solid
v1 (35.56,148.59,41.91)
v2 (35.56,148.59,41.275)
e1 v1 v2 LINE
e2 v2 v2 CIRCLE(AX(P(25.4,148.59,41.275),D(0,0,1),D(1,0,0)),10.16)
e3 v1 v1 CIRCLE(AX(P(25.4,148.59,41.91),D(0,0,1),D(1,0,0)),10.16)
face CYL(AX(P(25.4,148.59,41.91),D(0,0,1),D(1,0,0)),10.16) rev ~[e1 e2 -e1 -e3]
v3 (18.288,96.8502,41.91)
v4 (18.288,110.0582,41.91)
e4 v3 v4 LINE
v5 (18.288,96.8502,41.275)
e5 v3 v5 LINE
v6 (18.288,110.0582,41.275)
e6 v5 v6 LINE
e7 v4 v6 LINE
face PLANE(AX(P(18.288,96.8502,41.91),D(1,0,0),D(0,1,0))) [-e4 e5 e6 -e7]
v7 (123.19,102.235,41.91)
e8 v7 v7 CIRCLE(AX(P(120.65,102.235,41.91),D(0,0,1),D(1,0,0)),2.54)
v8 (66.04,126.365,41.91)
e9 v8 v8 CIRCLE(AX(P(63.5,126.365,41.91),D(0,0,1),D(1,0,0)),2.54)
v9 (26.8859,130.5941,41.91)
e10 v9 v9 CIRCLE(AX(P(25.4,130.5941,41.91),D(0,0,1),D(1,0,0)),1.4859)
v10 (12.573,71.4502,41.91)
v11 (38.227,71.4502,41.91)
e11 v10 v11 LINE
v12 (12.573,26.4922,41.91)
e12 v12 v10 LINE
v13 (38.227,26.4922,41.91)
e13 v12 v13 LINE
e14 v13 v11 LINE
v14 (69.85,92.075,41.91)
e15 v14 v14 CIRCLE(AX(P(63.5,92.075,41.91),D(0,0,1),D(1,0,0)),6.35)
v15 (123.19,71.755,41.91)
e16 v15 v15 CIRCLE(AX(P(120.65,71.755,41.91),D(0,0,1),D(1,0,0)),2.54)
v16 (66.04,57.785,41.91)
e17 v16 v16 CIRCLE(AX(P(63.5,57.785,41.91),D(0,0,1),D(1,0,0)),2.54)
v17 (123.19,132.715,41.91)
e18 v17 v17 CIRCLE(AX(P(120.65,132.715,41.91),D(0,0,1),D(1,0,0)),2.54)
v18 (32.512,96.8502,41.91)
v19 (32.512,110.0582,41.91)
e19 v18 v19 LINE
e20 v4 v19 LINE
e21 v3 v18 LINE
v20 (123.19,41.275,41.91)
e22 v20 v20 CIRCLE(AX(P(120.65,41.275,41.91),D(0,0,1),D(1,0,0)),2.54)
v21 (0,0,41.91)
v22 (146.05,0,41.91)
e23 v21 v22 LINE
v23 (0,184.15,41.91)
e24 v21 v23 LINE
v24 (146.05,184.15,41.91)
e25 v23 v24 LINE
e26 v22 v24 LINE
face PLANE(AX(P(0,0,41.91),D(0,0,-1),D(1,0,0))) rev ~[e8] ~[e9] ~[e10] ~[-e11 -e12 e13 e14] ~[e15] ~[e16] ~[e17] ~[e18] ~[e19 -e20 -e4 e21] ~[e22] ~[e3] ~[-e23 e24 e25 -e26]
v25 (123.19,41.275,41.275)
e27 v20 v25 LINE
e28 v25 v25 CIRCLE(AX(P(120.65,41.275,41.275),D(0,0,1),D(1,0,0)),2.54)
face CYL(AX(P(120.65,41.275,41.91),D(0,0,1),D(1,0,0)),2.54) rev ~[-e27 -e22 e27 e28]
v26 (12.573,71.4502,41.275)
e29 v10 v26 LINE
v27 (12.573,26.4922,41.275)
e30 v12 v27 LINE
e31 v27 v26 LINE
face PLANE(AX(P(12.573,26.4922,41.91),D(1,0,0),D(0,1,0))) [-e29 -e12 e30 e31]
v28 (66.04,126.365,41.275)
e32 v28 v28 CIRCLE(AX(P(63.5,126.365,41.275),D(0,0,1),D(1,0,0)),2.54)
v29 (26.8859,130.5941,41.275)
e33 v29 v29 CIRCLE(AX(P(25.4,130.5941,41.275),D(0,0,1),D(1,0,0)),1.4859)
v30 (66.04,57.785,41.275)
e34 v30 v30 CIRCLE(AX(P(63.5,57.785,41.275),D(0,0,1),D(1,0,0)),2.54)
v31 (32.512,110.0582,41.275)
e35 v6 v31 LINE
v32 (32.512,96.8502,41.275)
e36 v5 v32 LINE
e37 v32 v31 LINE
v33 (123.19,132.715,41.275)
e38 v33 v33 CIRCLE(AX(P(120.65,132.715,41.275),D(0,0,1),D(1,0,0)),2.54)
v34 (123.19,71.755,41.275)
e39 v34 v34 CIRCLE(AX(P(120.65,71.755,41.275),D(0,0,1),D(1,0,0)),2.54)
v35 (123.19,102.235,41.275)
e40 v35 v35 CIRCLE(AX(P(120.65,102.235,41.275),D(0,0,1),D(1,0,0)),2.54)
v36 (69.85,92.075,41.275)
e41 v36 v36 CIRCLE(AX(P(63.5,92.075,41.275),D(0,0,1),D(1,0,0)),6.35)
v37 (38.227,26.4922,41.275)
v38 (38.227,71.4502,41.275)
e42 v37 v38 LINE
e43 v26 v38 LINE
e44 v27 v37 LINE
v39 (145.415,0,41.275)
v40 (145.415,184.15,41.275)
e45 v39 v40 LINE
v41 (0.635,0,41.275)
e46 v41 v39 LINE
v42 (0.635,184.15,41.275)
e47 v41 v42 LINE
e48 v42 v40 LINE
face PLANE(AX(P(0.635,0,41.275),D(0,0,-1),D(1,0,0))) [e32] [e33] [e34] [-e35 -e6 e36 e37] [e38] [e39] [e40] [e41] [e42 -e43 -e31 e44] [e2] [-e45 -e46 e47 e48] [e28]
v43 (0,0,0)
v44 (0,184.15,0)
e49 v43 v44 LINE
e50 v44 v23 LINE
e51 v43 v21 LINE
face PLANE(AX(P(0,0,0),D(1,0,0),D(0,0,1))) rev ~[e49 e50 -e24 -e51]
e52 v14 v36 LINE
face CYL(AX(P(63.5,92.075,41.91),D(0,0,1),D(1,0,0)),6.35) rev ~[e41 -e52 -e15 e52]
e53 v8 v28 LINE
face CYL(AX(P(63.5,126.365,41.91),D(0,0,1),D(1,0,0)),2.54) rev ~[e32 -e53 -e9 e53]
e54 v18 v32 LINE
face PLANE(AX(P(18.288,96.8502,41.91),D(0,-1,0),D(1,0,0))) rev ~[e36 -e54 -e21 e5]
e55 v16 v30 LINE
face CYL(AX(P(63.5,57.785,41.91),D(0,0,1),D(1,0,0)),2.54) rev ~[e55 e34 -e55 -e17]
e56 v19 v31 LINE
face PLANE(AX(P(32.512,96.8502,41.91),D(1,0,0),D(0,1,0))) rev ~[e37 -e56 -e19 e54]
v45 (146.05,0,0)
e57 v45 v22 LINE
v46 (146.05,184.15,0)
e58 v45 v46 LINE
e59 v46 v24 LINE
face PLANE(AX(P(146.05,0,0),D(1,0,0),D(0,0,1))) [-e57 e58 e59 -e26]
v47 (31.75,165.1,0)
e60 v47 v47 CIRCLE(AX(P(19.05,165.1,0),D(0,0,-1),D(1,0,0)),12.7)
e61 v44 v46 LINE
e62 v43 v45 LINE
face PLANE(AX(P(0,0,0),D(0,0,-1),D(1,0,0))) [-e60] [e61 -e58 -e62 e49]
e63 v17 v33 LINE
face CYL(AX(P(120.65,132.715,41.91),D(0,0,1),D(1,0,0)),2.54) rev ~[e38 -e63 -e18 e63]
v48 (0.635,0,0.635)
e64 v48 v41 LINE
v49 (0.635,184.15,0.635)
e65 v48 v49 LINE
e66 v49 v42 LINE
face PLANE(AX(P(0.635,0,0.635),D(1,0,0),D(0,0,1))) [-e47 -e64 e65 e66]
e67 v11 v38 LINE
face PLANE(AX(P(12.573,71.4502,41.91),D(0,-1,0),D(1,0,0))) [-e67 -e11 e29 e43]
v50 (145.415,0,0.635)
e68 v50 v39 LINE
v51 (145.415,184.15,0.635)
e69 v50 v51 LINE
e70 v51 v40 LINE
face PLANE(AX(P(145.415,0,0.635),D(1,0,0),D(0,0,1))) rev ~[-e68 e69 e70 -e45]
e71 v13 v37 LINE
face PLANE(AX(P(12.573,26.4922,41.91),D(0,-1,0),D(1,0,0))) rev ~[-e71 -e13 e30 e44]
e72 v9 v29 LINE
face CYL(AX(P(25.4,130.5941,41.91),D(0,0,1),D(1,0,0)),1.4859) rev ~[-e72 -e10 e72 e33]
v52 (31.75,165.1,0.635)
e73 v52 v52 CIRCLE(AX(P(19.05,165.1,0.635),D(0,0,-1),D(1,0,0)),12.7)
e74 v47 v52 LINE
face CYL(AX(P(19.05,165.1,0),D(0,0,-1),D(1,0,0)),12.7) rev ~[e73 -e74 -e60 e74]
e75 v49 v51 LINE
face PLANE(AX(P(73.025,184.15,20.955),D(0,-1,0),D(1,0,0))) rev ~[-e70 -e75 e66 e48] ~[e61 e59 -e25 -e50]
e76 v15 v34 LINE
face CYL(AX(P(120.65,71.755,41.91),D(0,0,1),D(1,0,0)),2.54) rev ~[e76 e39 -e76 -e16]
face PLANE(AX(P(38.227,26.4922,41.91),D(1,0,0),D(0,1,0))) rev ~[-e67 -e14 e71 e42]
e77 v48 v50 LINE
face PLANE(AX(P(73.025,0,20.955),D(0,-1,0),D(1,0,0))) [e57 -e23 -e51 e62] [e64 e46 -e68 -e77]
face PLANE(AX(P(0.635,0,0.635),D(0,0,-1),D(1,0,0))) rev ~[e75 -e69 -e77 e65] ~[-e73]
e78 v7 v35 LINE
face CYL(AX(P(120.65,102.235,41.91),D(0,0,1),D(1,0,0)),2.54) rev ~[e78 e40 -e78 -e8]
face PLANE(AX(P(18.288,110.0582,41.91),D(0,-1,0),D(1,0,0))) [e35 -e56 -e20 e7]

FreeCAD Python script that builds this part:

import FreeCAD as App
import Part
import Sketcher

V = App.Vector
Q = App.Units.Quantity


def add_polygon(sketch, points):
    """Adds a closed chain of lines whose ends are joined by coincident constraints."""
    first, n = sketch.GeometryCount, len(points)
    for a, b in zip(points, points[1:] + points[:1]):
        sketch.addGeometry(Part.LineSegment(App.Vector(*a, 0), App.Vector(*b, 0)), False)
    for i in range(n):
        sketch.addConstraint(Sketcher.Constraint("Coincident", first + i, 2, first + (i + 1) % n, 1))

doc = App.newDocument("Part")
params = doc.addObject("Spreadsheet::Sheet", "Params")
for row, (alias, value) in enumerate([
    ("sketch1_width", "5.7 in"),
    ("sketch1_height", "1.6 in"),
    ("sketch1_width2", "5.75 in"),
    ("sketch1_height2", "1.65 in"),
    ("pad1_length", "7.25 in"),
    ("sketch2_diameter", "1 in"),
    ("pocket1_length", "0.025 in"),
    ("sketch3_diameter", "0.8 in"),
    ("sketch3_diameter2", "0.5 in"),
    ("sketch3_diameter3", "0.2 in"),
    ("sketch3_width", "1.01 in"),
    ("sketch3_width2", "0.56 in"),
    ("pocket2_length", "0.025 in"),
    ("sketch4_diameter", "0.2 in"),
    ("sketch4_diameter2", "0.117 in"),
    ("pocket3_length", "0.025 in"),
], start=1):
    params.set(f"A{row}", alias)
    params.set(f"B{row}", "=" + value)
    params.setAlias(f"B{row}", alias)

body = doc.addObject("PartDesign::Body", "Body")

# Sketch on XZ plane
sketch1 = body.newObject("Sketcher::SketchObject", "Sketch")
sketch1.AttachmentSupport = (doc.getObject("XZ_Plane"), [""])
sketch1.MapMode = "FlatFace"
add_polygon(sketch1, [(0, 42), (0, 0), (146, 0), (146, 42)])  # lines 0-3
add_polygon(sketch1, [(145, 1), (1, 1), (1, 41), (145, 41)])  # lines 4-7
sketch1.addConstraint(Sketcher.Constraint("Vertical", 0))
sketch1.addConstraint(Sketcher.Constraint("Horizontal", 1))
sketch1.addConstraint(Sketcher.Constraint("Vertical", 2))
sketch1.addConstraint(Sketcher.Constraint("Horizontal", 3))
sketch1.addConstraint(Sketcher.Constraint("Horizontal", 4))
sketch1.addConstraint(Sketcher.Constraint("Vertical", 5))
sketch1.addConstraint(Sketcher.Constraint("Horizontal", 6))
sketch1.addConstraint(Sketcher.Constraint("Vertical", 7))
sketch1.addConstraint(Sketcher.Constraint("Coincident", 0, 2, -1, 1))
sketch1.addConstraint(Sketcher.Constraint("DistanceX", 4, 2, 4, 1, Q("5.7 in")))
sketch1.addConstraint(Sketcher.Constraint("DistanceY", 5, 1, 5, 2, Q("1.6 in")))
sketch1.addConstraint(Sketcher.Constraint("DistanceX", 1, 1, 1, 2, Q("5.75 in")))
sketch1.addConstraint(Sketcher.Constraint("DistanceY", 0, 2, 0, 1, Q("1.65 in")))
sketch1.addConstraint(Sketcher.Constraint("DistanceX", -1, 1, 4, 2, Q("0.025 in")))
sketch1.addConstraint(Sketcher.Constraint("DistanceY", -1, 1, 4, 2, Q("0.025 in")))
sketch1.setExpression("Constraints[17]", "Params.sketch1_width")
sketch1.setExpression("Constraints[18]", "Params.sketch1_height")
sketch1.setExpression("Constraints[19]", "Params.sketch1_width2")
sketch1.setExpression("Constraints[20]", "Params.sketch1_height2")
pad1 = body.newObject("PartDesign::Pad", "Pad")
pad1.Profile = sketch1
pad1.setExpression("Length", "Params.pad1_length")
pad1.Reversed = True

# Sketch on XY plane
sketch2 = body.newObject("Sketcher::SketchObject", "Sketch001")
sketch2.AttachmentSupport = (doc.getObject("XY_Plane"), [""])
sketch2.MapMode = "FlatFace"
sketch2.addGeometry(Part.Circle(V(19, 165, 0), V(0, 0, 1), 13), False)
sketch2.addConstraint(Sketcher.Constraint("Diameter", 0, Q("1 in")))
sketch2.addConstraint(Sketcher.Constraint("DistanceY", -1, 1, 0, 3, Q("6.5 in")))
sketch2.addConstraint(Sketcher.Constraint("DistanceX", -1, 1, 0, 3, Q("0.75 in")))
sketch2.setExpression("Constraints[0]", "Params.sketch2_diameter")
pocket1 = body.newObject("PartDesign::Pocket", "Pocket")
pocket1.Profile = sketch2
pocket1.setExpression("Length", "Params.pocket1_length")
pocket1.Reversed = True

# Sketch on XY plane
sketch3 = body.newObject("Sketcher::SketchObject", "Sketch002")
sketch3.AttachmentSupport = (doc.getObject("XY_Plane"), [""])
sketch3.MapMode = "FlatFace"
sketch3.AttachmentOffset = App.Placement(V(0, 0, 1.65 * 25.4), App.Rotation())
add_polygon(sketch3, [(12.6, 71.5), (12.6, 26.5), (38.2, 26.5), (38.2, 71.5)])  # lines 0-3
add_polygon(sketch3, [(18.3, 110.1), (18.3, 96.9), (32.5, 96.9), (32.5, 110.1)])  # lines 4-7
sketch3.addGeometry(Part.Circle(V(25.4, 148.6, 0), V(0, 0, 1), 10.2), False)  # 8
sketch3.addGeometry(Part.Circle(V(63.5, 92.1, 0), V(0, 0, 1), 6.3), False)  # 9
sketch3.addGeometry(Part.Circle(V(63.5, 57.8, 0), V(0, 0, 1), 2.5), False)  # 10
sketch3.addGeometry(Part.Circle(V(120.7, 71.8, 0), V(0, 0, 1), 2.5), False)  # 11
sketch3.addGeometry(Part.Circle(V(120.7, 132.7, 0), V(0, 0, 1), 2.5), False)  # 12
sketch3.addConstraint(Sketcher.Constraint("Vertical", 0))
sketch3.addConstraint(Sketcher.Constraint("Horizontal", 1))
sketch3.addConstraint(Sketcher.Constraint("Vertical", 2))
sketch3.addConstraint(Sketcher.Constraint("Horizontal", 3))
sketch3.addConstraint(Sketcher.Constraint("Vertical", 4))
sketch3.addConstraint(Sketcher.Constraint("Horizontal", 5))
sketch3.addConstraint(Sketcher.Constraint("Vertical", 6))
sketch3.addConstraint(Sketcher.Constraint("Horizontal", 7))
sketch3.addConstraint(Sketcher.Constraint("Equal", 10, 11))
sketch3.addConstraint(Sketcher.Constraint("Equal", 11, 12))
sketch3.addConstraint(Sketcher.Constraint("Vertical", 9, 3, 10, 3))
sketch3.addConstraint(Sketcher.Constraint("Vertical", 11, 3, 12, 3))
sketch3.addConstraint(Sketcher.Constraint("Diameter", 8, Q("0.8 in")))
sketch3.addConstraint(Sketcher.Constraint("Diameter", 9, Q("0.5 in")))
sketch3.addConstraint(Sketcher.Constraint("Diameter", 10, Q("0.2 in")))
sketch3.addConstraint(Sketcher.Constraint("DistanceX", -1, 1, 8, 3, Q("1 in")))
sketch3.addConstraint(Sketcher.Constraint("DistanceY", 3, 2, 4, 2, Q("1 in")))
sketch3.addConstraint(Sketcher.Constraint("DistanceX", 1, 1, 1, 2, Q("1.01 in")))
sketch3.addConstraint(Sketcher.Constraint("DistanceX", 5, 1, 5, 2, Q("0.56 in")))
sketch3.addConstraint(Sketcher.Constraint("DistanceY", 0, 2, 0, 1, Q("1.77 in")))
sketch3.addConstraint(Sketcher.Constraint("DistanceY", 4, 2, 4, 1, Q("0.52 in")))
sketch3.addConstraint(Sketcher.Constraint("DistanceX", -1, 1, 9, 3, Q("2.5 in")))
sketch3.addConstraint(Sketcher.Constraint("DistanceY", 11, 3, 9, 3, Q("0.8 in")))
sketch3.addConstraint(Sketcher.Constraint("DistanceY", 11, 3, 12, 3, Q("2.4 in")))
sketch3.addConstraint(Sketcher.Constraint("DistanceY", -1, 1, 8, 3, Q("5.85 in")))
sketch3.addConstraint(Sketcher.Constraint("DistanceX", -1, 1, 11, 3, Q("4.75 in")))
sketch3.addConstraint(Sketcher.Constraint("DistanceX", -1, 1, 4, 2, Q("0.72 in")))
sketch3.addConstraint(Sketcher.Constraint("DistanceY", 10, 3, 9, 3, Q("1.35 in")))
sketch3.addConstraint(Sketcher.Constraint("DistanceY", -1, 1, 9, 3, Q("3.625 in")))
sketch3.addConstraint(Sketcher.Constraint("DistanceX", -1, 1, 0, 2, Q("0.495 in")))
sketch3.addConstraint(Sketcher.Constraint("DistanceY", -1, 1, 0, 2, Q("1.043 in")))
sketch3.setExpression("Constraints[20]", "Params.sketch3_diameter")
sketch3.setExpression("Constraints[21]", "Params.sketch3_diameter2")
sketch3.setExpression("Constraints[22]", "Params.sketch3_diameter3")
sketch3.setExpression("Constraints[25]", "Params.sketch3_width")
sketch3.setExpression("Constraints[26]", "Params.sketch3_width2")
pocket2 = body.newObject("PartDesign::Pocket", "Pocket001")
pocket2.Profile = sketch3
pocket2.setExpression("Length", "Params.pocket2_length")

# Sketch on XY plane
sketch4 = body.newObject("Sketcher::SketchObject", "Sketch003")
sketch4.AttachmentSupport = (doc.getObject("XY_Plane"), [""])
sketch4.MapMode = "FlatFace"
sketch4.AttachmentOffset = App.Placement(V(0, 0, 1.65 * 25.4), App.Rotation())
sketch4.addGeometry(Part.Circle(V(25.4, 130.6, 0), V(0, 0, 1), 1.5), False)
sketch4.addGeometry(Part.Circle(V(63.5, 126.4, 0), V(0, 0, 1), 2.5), False)
sketch4.addGeometry(Part.Circle(V(120.7, 102.2, 0), V(0, 0, 1), 2.5), False)
sketch4.addGeometry(Part.Circle(V(120.7, 41.3, 0), V(0, 0, 1), 2.5), False)
sketch4.addConstraint(Sketcher.Constraint("Equal", 1, 2))
sketch4.addConstraint(Sketcher.Constraint("Equal", 2, 3))
sketch4.addConstraint(Sketcher.Constraint("Vertical", 2, 3, 3, 3))
sketch4.addConstraint(Sketcher.Constraint("Diameter", 1, Q("0.2 in")))
sketch4.addConstraint(Sketcher.Constraint("Diameter", 0, Q("0.117 in")))
sketch4.addConstraint(Sketcher.Constraint("DistanceX", -1, 1, 0, 3, Q("1 in")))
sketch4.addConstraint(Sketcher.Constraint("DistanceX", -1, 1, 1, 3, Q("2.5 in")))
sketch4.addConstraint(Sketcher.Constraint("DistanceY", 3, 3, 2, 3, Q("2.4 in")))
sketch4.addConstraint(Sketcher.Constraint("DistanceX", -1, 1, 2, 3, Q("4.75 in")))
sketch4.addConstraint(Sketcher.Constraint("DistanceY", 2, 3, 1, 3, Q("0.95 in")))
sketch4.addConstraint(Sketcher.Constraint("DistanceY", -1, 1, 1, 3, Q("4.975 in")))
sketch4.addConstraint(Sketcher.Constraint("DistanceY", -1, 1, 0, 3, Q("5.1415 in")))
sketch4.setExpression("Constraints[3]", "Params.sketch4_diameter")
sketch4.setExpression("Constraints[4]", "Params.sketch4_diameter2")
pocket3 = body.newObject("PartDesign::Pocket", "Pocket002")
pocket3.Profile = sketch4
pocket3.setExpression("Length", "Params.pocket3_length")

doc.recompute()
